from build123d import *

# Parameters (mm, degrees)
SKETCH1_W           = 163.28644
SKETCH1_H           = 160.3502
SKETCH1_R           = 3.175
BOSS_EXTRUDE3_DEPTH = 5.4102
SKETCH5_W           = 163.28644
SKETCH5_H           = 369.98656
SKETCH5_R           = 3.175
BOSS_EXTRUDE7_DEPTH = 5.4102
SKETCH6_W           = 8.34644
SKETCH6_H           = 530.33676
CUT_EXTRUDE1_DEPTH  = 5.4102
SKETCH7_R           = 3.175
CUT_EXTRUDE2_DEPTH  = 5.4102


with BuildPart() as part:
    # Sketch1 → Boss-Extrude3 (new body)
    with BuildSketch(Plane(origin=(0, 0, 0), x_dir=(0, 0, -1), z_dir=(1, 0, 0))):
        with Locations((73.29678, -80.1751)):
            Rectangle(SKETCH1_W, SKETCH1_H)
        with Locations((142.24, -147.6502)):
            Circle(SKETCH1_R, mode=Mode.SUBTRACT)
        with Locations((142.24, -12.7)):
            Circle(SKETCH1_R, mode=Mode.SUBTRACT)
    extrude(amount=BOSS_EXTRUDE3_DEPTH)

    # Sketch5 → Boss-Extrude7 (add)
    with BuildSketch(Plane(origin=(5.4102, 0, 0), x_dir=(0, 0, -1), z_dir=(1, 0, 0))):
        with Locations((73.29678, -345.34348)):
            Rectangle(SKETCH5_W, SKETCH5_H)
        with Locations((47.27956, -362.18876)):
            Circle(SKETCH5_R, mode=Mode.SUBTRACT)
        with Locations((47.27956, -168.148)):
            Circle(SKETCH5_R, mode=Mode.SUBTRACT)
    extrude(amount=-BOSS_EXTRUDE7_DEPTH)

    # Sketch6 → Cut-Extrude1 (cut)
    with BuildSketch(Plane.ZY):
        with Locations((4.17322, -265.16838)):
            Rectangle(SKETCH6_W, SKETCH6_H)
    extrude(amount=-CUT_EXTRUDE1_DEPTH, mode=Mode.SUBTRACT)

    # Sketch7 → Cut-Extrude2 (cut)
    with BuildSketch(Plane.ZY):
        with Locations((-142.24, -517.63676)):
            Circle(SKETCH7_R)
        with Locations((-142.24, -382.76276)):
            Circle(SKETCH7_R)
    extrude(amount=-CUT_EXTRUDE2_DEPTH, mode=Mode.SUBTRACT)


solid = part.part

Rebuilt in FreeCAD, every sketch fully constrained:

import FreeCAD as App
import Part
import Sketcher
from FreeCAD import Vector
Q = App.Units.Quantity

doc = App.newDocument("Part")
params = doc.addObject("Spreadsheet::Sheet", "Params")
for row, (alias, value) in enumerate([
    ("sketch1_diameter", "0.25 in"),
    ("sketch1_width", "6.313 in"),
    ("pad1_length", "0.213 in"),
    ("sketch2_diameter", "0.25 in"),
    ("pad2_length", "0.213 in"),
    ("pocket1_length", "0.213 in"),
    ("sketch4_diameter", "0.25 in"),
    ("pocket2_length", "0.213 in"),
], start=1):
    params.set(f"A{row}", alias)
    params.set(f"B{row}", "=" + value)
    params.setAlias(f"B{row}", alias)

body = doc.addObject("PartDesign::Body", "Body")

# Sketch on YZ plane
sketch1 = doc.addObject("Sketcher::SketchObject", "Sketch")
body.addObject(sketch1)
sketch1.AttachmentSupport = (doc.YZ_Plane, [""])
sketch1.MapMode = "FlatFace"
sketch1.addGeometry([
    Part.LineSegment(Vector(0, 8.34644, 0), Vector(-160.3502, 8.34644, 0)),  # 0
    Part.LineSegment(Vector(-160.3502, 8.34644, 0), Vector(-160.3502, -154.94, 0)),  # 1
    Part.LineSegment(Vector(-160.3502, -154.94, 0), Vector(0, -154.94, 0)),  # 2
    Part.LineSegment(Vector(0, -154.94, 0), Vector(0, 8.34644, 0)),  # 3
    Part.Circle(Vector(-147.6502, -142.24, 0), Vector(0, 0, 1), 3.175),  # 4
    Part.Circle(Vector(-12.7, -142.24, 0), Vector(0, 0, 1), 3.175),  # 5
], False)
sketch1.addConstraint([
    Sketcher.Constraint("Coincident", 0, 2, 1, 1),
    Sketcher.Constraint("Coincident", 1, 2, 2, 1),
    Sketcher.Constraint("Coincident", 2, 2, 3, 1),
    Sketcher.Constraint("Coincident", 3, 2, 0, 1),
    Sketcher.Constraint("Horizontal", 0),
    Sketcher.Constraint("Vertical", 1),
    Sketcher.Constraint("Horizontal", 2),
    Sketcher.Constraint("Vertical", 3),
    Sketcher.Constraint("Equal", 4, 5),
    Sketcher.Constraint("PointOnObject", 2, 2, -2),
    Sketcher.Constraint("Horizontal", 4, 3, 5, 3),
    Sketcher.Constraint("Diameter", 4, Q("0.25 in")),
    Sketcher.Constraint("DistanceY", 4, 3, -1, 1, Q("5.6 in")),
    Sketcher.Constraint("DistanceX", 5, 3, -1, 1, Q("0.5 in")),
    Sketcher.Constraint("DistanceY", 1, 2, -1, 1, Q("6.1 in")),
    Sketcher.Constraint("DistanceX", 0, 2, 4, 3, Q("0.5 in")),
    Sketcher.Constraint("DistanceX", 0, 2, 0, 1, Q("6.313 in")),
    Sketcher.Constraint("DistanceY", 1, 2, 1, 1, Q("6.4286 in")),
])
sketch1.setExpression("Constraints[11]", "Params.sketch1_diameter")
sketch1.setExpression("Constraints[16]", "Params.sketch1_width")
pad1 = doc.addObject("PartDesign::Pad", "Pad")
body.addObject(pad1)
pad1.Profile = sketch1
pad1.setExpression("Length", "Params.pad1_length")

# Sketch on YZ plane
sketch2 = doc.addObject("Sketcher::SketchObject", "Sketch001")
body.addObject(sketch2)
sketch2.AttachmentSupport = (doc.YZ_Plane, [""])
sketch2.MapMode = "FlatFace"
sketch2.AttachmentOffset = App.Placement(Vector(0, 0, 0.213 * 25.4), App.Rotation())
sketch2.addGeometry([
    Part.LineSegment(Vector(-160.3502, 8.34644, 0), Vector(-530.33676, 8.34644, 0)),  # 0
    Part.LineSegment(Vector(-530.33676, 8.34644, 0), Vector(-530.33676, -154.94, 0)),  # 1
    Part.LineSegment(Vector(-530.33676, -154.94, 0), Vector(-160.3502, -154.94, 0)),  # 2
    Part.LineSegment(Vector(-160.3502, -154.94, 0), Vector(-160.3502, 8.34644, 0)),  # 3
    Part.Circle(Vector(-362.18876, -47.27956, 0), Vector(0, 0, 1), 3.175),  # 4
    Part.Circle(Vector(-168.148, -47.27956, 0), Vector(0, 0, 1), 3.175),  # 5
], False)
sketch2.addConstraint([
    Sketcher.Constraint("Coincident", 0, 2, 1, 1),
    Sketcher.Constraint("Coincident", 1, 2, 2, 1),
    Sketcher.Constraint("Coincident", 2, 2, 3, 1),
    Sketcher.Constraint("Coincident", 3, 2, 0, 1),
    Sketcher.Constraint("Horizontal", 0),
    Sketcher.Constraint("Vertical", 1),
    Sketcher.Constraint("Horizontal", 2),
    Sketcher.Constraint("Vertical", 3),
    Sketcher.Constraint("Equal", 4, 5),
    Sketcher.Constraint("Horizontal", 4, 3, 5, 3),
    Sketcher.Constraint("Diameter", 4, Q("0.25 in")),
    Sketcher.Constraint("DistanceY", 1, 2, -1, 1, Q("6.1 in")),
    Sketcher.Constraint("DistanceX", 5, 3, -1, 1, Q("6.62 in")),
    Sketcher.Constraint("DistanceX", 0, 2, 4, 3, Q("6.62 in")),
    Sketcher.Constraint("DistanceY", 4, 3, 0, 2, Q("2.19 in")),
    Sketcher.Constraint("DistanceX", 0, 2, 0, 1, Q("14.5664 in")),
    Sketcher.Constraint("DistanceY", 1, 2, 1, 1, Q("6.4286 in")),
    Sketcher.Constraint("DistanceX", 2, 2, -1, 1, Q("6.313 in")),
])
sketch2.setExpression("Constraints[10]", "Params.sketch2_diameter")
pad2 = doc.addObject("PartDesign::Pad", "Pad001")
body.addObject(pad2)
pad2.Profile = sketch2
pad2.setExpression("Length", "Params.pad2_length")
pad2.Reversed = True

# Sketch on YZ plane
sketch3 = doc.addObject("Sketcher::SketchObject", "Sketch002")
body.addObject(sketch3)
sketch3.AttachmentSupport = (doc.YZ_Plane, [""])
sketch3.MapMode = "FlatFace"
sketch3.addGeometry([
    Part.LineSegment(Vector(0, 0, 0), Vector(-530.33676, 0, 0)),
    Part.LineSegment(Vector(-530.33676, 0, 0), Vector(-530.33676, 8.34644, 0)),
    Part.LineSegment(Vector(-530.33676, 8.34644, 0), Vector(0, 8.34644, 0)),
    Part.LineSegment(Vector(0, 8.34644, 0), Vector(0, 0, 0)),
], False)
sketch3.addConstraint([
    Sketcher.Constraint("Coincident", 0, 2, 1, 1),
    Sketcher.Constraint("Coincident", 1, 2, 2, 1),
    Sketcher.Constraint("Coincident", 2, 2, 3, 1),
    Sketcher.Constraint("Coincident", 3, 2, 0, 1),
    Sketcher.Constraint("Horizontal", 0),
    Sketcher.Constraint("Vertical", 1),
    Sketcher.Constraint("Horizontal", 2),
    Sketcher.Constraint("Vertical", 3),
    Sketcher.Constraint("Coincident", 3, 2, -1, 1),
    Sketcher.Constraint("DistanceX", 0, 2, 0, 1, Q("20.8794 in")),
    Sketcher.Constraint("DistanceY", 1, 1, 1, 2, Q("0.3286 in")),
])
pocket1 = doc.addObject("PartDesign::Pocket", "Pocket")
body.addObject(pocket1)
pocket1.Profile = sketch3
pocket1.setExpression("Length", "Params.pocket1_length")
pocket1.Reversed = True

# Sketch on YZ plane
sketch4 = doc.addObject("Sketcher::SketchObject", "Sketch003")
body.addObject(sketch4)
sketch4.AttachmentSupport = (doc.YZ_Plane, [""])
sketch4.MapMode = "FlatFace"
sketch4.addGeometry([
    Part.Circle(Vector(-517.63676, -142.24, 0), Vector(0, 0, 1), 3.175),
    Part.Circle(Vector(-382.76276, -142.24, 0), Vector(0, 0, 1), 3.175),
], False)
sketch4.addConstraint([
    Sketcher.Constraint("Equal", 0, 1),
    Sketcher.Constraint("Horizontal", 0, 3, 1, 3),
    Sketcher.Constraint("Diameter", 0, Q("0.25 in")),
    Sketcher.Constraint("DistanceY", 0, 3, -1, 1, Q("5.6 in")),
    Sketcher.Constraint("DistanceX", 0, 3, 1, 3, Q("5.31 in")),
    Sketcher.Constraint("DistanceX", 0, 3, -1, 1, Q("20.3794 in")),
])
sketch4.setExpression("Constraints[2]", "Params.sketch4_diameter")
pocket2 = doc.addObject("PartDesign::Pocket", "Pocket001")
body.addObject(pocket2)
pocket2.Profile = sketch4
pocket2.setExpression("Length", "Params.pocket2_length")
pocket2.Reversed = True

doc.recompute()
